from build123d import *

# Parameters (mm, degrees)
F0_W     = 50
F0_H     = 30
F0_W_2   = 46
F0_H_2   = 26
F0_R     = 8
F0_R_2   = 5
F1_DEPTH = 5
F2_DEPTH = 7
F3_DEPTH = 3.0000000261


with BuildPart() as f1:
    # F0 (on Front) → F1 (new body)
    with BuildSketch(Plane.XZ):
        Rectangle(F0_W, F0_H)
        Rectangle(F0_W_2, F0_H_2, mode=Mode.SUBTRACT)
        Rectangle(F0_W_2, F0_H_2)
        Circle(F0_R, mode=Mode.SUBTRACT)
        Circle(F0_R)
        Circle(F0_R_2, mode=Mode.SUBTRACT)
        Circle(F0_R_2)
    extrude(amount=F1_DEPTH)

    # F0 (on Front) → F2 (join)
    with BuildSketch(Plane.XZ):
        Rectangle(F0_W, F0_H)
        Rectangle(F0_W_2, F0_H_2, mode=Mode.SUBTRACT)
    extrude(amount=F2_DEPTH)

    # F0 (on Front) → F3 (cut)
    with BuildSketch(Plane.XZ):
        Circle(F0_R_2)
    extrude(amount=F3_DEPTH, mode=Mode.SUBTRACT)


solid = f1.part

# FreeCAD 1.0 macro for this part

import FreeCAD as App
import Part
import Sketcher

V = App.Vector
Q = App.Units.Quantity

doc = App.newDocument("Part")
body = doc.addObject("PartDesign::Body", "Body")

# Sketch on XZ plane
sketch1 = body.newObject("Sketcher::SketchObject", "Sketch")
sketch1.AttachmentSupport = (doc.getObject("XZ_Plane"), [""])
sketch1.MapMode = "FlatFace"
sketch1.addGeometry([
    Part.LineSegment(V(-25, 15, 0), V(-25, -15, 0)),
    Part.LineSegment(V(-25, -15, 0), V(25, -15, 0)),
    Part.LineSegment(V(25, -15, 0), V(25, 15, 0)),
    Part.LineSegment(V(25, 15, 0), V(-25, 15, 0)),
], False)
sketch1.addConstraint([
    Sketcher.Constraint("Coincident", 0, 2, 1, 1),
    Sketcher.Constraint("Coincident", 1, 2, 2, 1),
    Sketcher.Constraint("Coincident", 2, 2, 3, 1),
    Sketcher.Constraint("Coincident", 3, 2, 0, 1),
    Sketcher.Constraint("Vertical", 0),
    Sketcher.Constraint("Horizontal", 1),
    Sketcher.Constraint("Vertical", 2),
    Sketcher.Constraint("Horizontal", 3),
    Sketcher.Constraint("Symmetric", 0, 2, 2, 2, -1, 1),
    Sketcher.Constraint("DistanceX", 1, 1, 1, 2, Q("50 mm")),
    Sketcher.Constraint("DistanceY", 0, 2, 0, 1, Q("30 mm")),
])
pad1 = body.newObject("PartDesign::Pad", "Pad")
pad1.Profile = sketch1
pad1.Length = 5

# Sketch on XZ plane
sketch2 = body.newObject("Sketcher::SketchObject", "Sketch001")
sketch2.AttachmentSupport = (doc.getObject("XZ_Plane"), [""])
sketch2.MapMode = "FlatFace"
sketch2.addGeometry([
    Part.LineSegment(V(-25, 15, 0), V(-25, -15, 0)),  # 0
    Part.LineSegment(V(-25, -15, 0), V(25, -15, 0)),  # 1
    Part.LineSegment(V(25, -15, 0), V(25, 15, 0)),  # 2
    Part.LineSegment(V(25, 15, 0), V(-25, 15, 0)),  # 3
    Part.LineSegment(V(23, -13, 0), V(-23, -13, 0)),  # 4
    Part.LineSegment(V(-23, -13, 0), V(-23, 13, 0)),  # 5
    Part.LineSegment(V(-23, 13, 0), V(23, 13, 0)),  # 6
    Part.LineSegment(V(23, 13, 0), V(23, -13, 0)),  # 7
], False)
sketch2.addConstraint([
    Sketcher.Constraint("Coincident", 0, 2, 1, 1),
    Sketcher.Constraint("Coincident", 1, 2, 2, 1),
    Sketcher.Constraint("Coincident", 2, 2, 3, 1),
    Sketcher.Constraint("Coincident", 3, 2, 0, 1),
    Sketcher.Constraint("Coincident", 4, 2, 5, 1),
    Sketcher.Constraint("Coincident", 5, 2, 6, 1),
    Sketcher.Constraint("Coincident", 6, 2, 7, 1),
    Sketcher.Constraint("Coincident", 7, 2, 4, 1),
    Sketcher.Constraint("Vertical", 0),
    Sketcher.Constraint("Horizontal", 1),
    Sketcher.Constraint("Vertical", 2),
    Sketcher.Constraint("Horizontal", 3),
    Sketcher.Constraint("Horizontal", 4),
    Sketcher.Constraint("Vertical", 5),
    Sketcher.Constraint("Horizontal", 6),
    Sketcher.Constraint("Vertical", 7),
    Sketcher.Constraint("Symmetric", 0, 2, 2, 2, -1, 1),
    Sketcher.Constraint("Symmetric", 4, 2, 6, 2, -1, 1),
    Sketcher.Constraint("DistanceX", 1, 1, 1, 2, Q("50 mm")),
    Sketcher.Constraint("DistanceX", 4, 2, 4, 1, Q("46 mm")),
    Sketcher.Constraint("DistanceY", 0, 2, 0, 1, Q("30 mm")),
    Sketcher.Constraint("DistanceY", 5, 1, 5, 2, Q("26 mm")),
])
pad2 = body.newObject("PartDesign::Pad", "Pad001")
pad2.Profile = sketch2
pad2.Length = 7

# Sketch on XZ plane
sketch3 = body.newObject("Sketcher::SketchObject", "Sketch002")
sketch3.AttachmentSupport = (doc.getObject("XZ_Plane"), [""])
sketch3.MapMode = "FlatFace"
sketch3.addGeometry(Part.Circle(V(0, 0, 0), V(0, 0, 1), 5), False)
sketch3.addConstraint([
    Sketcher.Constraint("Coincident", 0, 3, -1, 1),
    Sketcher.Constraint("Diameter", 0, Q("10 mm")),
])
pocket1 = body.newObject("PartDesign::Pocket", "Pocket")
pocket1.Profile = sketch3
pocket1.Length = 3
pocket1.Reversed = True

doc.recompute()
